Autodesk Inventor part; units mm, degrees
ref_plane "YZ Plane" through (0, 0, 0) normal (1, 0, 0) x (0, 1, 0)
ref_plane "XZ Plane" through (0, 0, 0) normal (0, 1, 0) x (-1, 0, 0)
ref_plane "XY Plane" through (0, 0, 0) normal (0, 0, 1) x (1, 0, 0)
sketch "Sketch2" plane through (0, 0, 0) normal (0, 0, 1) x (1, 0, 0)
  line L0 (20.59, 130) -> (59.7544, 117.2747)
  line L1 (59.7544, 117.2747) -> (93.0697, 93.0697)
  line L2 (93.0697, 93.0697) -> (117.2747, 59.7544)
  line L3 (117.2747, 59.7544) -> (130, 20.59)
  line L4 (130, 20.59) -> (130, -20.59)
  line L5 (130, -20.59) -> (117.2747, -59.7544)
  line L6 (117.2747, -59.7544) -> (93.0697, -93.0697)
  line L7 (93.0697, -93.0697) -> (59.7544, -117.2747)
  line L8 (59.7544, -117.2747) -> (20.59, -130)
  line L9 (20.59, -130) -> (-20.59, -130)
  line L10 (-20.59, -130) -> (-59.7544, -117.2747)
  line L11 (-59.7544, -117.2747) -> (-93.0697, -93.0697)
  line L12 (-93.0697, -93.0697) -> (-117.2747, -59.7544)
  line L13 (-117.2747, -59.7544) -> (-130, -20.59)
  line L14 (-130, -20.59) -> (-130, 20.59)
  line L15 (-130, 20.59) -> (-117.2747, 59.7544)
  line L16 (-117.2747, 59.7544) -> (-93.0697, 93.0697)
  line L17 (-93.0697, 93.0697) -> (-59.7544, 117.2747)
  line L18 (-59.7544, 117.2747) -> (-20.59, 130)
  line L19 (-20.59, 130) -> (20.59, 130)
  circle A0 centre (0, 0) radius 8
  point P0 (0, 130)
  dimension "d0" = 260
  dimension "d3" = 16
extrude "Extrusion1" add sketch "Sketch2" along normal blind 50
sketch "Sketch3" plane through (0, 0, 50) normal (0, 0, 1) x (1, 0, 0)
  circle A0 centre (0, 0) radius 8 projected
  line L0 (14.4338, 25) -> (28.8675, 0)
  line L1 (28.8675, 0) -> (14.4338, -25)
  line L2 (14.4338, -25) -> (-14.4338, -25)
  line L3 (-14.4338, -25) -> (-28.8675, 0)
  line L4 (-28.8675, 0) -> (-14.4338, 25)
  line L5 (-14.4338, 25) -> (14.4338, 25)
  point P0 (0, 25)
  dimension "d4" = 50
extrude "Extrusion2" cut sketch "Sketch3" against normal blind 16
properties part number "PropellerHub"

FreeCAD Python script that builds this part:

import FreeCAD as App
import Part
import Sketcher
from FreeCAD import Vector
Q = App.Units.Quantity


def add_polygon(sketch, points):
    """Adds a closed chain of lines whose ends are joined by coincident constraints."""
    first, n = sketch.GeometryCount, len(points)
    for a, b in zip(points, points[1:] + points[:1]):
        sketch.addGeometry(Part.LineSegment(App.Vector(*a, 0), App.Vector(*b, 0)), False)
    for i in range(n):
        sketch.addConstraint(Sketcher.Constraint("Coincident", first + i, 2, first + (i + 1) % n, 1))

doc = App.newDocument("Part")
body = doc.addObject("PartDesign::Body", "Body")

# Sketch on XY plane
sketch1 = body.newObject("Sketcher::SketchObject", "Sketch")
sketch1.AttachmentSupport = (doc.getObject("XY_Plane"), [""])
sketch1.MapMode = "FlatFace"
add_polygon(sketch1, [(60, 117), (21, 130), (-21, 130), (-60, 117), (-93, 93), (-117, 60), (-130, 21), (-130, -21), (-117, -60), (-93, -93), (-60, -117), (-21, -130), (21, -130), (60, -117), (93, -93), (117, -60), (130, -21), (130, 21), (117, 60), (93, 93)])  # lines 0-19
sketch1.addGeometry(Part.Circle(Vector(0, 0, 0), Vector(0, 0, 1), 8), False)  # 20
sketch1.addConstraint(Sketcher.Constraint("Horizontal", 1))
sketch1.addConstraint(Sketcher.Constraint("Vertical", 6))
sketch1.addConstraint(Sketcher.Constraint("Horizontal", 11))
sketch1.addConstraint(Sketcher.Constraint("Vertical", 16))
sketch1.addConstraint(Sketcher.Constraint("Coincident", 20, 3, -1, 1))
sketch1.addConstraint(Sketcher.Constraint("Symmetric", 0, 2, 10, 2, -1, 1))
sketch1.addConstraint(Sketcher.Constraint("Symmetric", 2, 2, 12, 2, -1, 1))
sketch1.addConstraint(Sketcher.Constraint("Symmetric", 3, 2, 13, 2, -1, 1))
sketch1.addConstraint(Sketcher.Constraint("Symmetric", 4, 2, 14, 2, -1, 1))
sketch1.addConstraint(Sketcher.Constraint("Symmetric", 5, 2, 15, 2, -1, 1))
sketch1.addConstraint(Sketcher.Constraint("Symmetric", 7, 2, 17, 2, -1, 1))
sketch1.addConstraint(Sketcher.Constraint("Symmetric", 8, 2, 18, 2, -1, 1))
sketch1.addConstraint(Sketcher.Constraint("Symmetric", 9, 2, 19, 2, -1, 1))
sketch1.addConstraint(Sketcher.Constraint("Symmetric", 9, 2, 12, 2, -2))
sketch1.addConstraint(Sketcher.Constraint("Symmetric", 8, 2, 13, 2, -2))
sketch1.addConstraint(Sketcher.Constraint("Symmetric", 7, 2, 14, 2, -2))
sketch1.addConstraint(Sketcher.Constraint("Perpendicular", 0, 5))
sketch1.addConstraint(Sketcher.Constraint("Perpendicular", 2, 7))
sketch1.addConstraint(Sketcher.Constraint("Perpendicular", 3, 8))
sketch1.addConstraint(Sketcher.Constraint("Perpendicular", 7, 12))
sketch1.addConstraint(Sketcher.Constraint("Perpendicular", 12, 17))
sketch1.addConstraint(Sketcher.Constraint("Horizontal", 6, 2, 15, 2))
sketch1.addConstraint(Sketcher.Constraint("Equal", 11, 6))
sketch1.addConstraint(Sketcher.Constraint("Equal", 2, 3))
sketch1.addConstraint(Sketcher.Constraint("Equal", 3, 4))
sketch1.addConstraint(Sketcher.Constraint("Equal", 4, 5))
sketch1.addConstraint(Sketcher.Constraint("Diameter", 20, Q("16 mm")))
sketch1.addConstraint(Sketcher.Constraint("Angle", 0, Q("162 deg")))
sketch1.addConstraint(Sketcher.Constraint("Angle", 3, Q("-144 deg")))
sketch1.addConstraint(Sketcher.Constraint("DistanceY", -1, 1, 0, 2, Q("130 mm")))
sketch1.addConstraint(Sketcher.Constraint("DistanceX", 1, 2, 1, 1, Q("41.18 mm")))
pad1 = body.newObject("PartDesign::Pad", "Pad")
pad1.Profile = sketch1
pad1.Length = 50

# Sketch on XY plane
sketch2 = body.newObject("Sketcher::SketchObject", "Sketch001")
sketch2.AttachmentSupport = (doc.getObject("XY_Plane"), [""])
sketch2.MapMode = "FlatFace"
sketch2.AttachmentOffset = App.Placement(Vector(0, 0, 50), App.Rotation())
add_polygon(sketch2, [(29, 0), (14, 25), (-14, 25), (-29, 0), (-14, -25), (14, -25)])  # lines 0-5
sketch2.addGeometry(Part.Circle(Vector(0, 0, 0), Vector(0, 0, 1), 8), False)  # 6
sketch2.addConstraint(Sketcher.Constraint("Horizontal", 1))
sketch2.addConstraint(Sketcher.Constraint("Horizontal", 4))
sketch2.addConstraint(Sketcher.Constraint("Coincident", 6, 3, -1, 1))
sketch2.addConstraint(Sketcher.Constraint("Symmetric", 0, 2, 3, 2, -1, 1))
sketch2.addConstraint(Sketcher.Constraint("Symmetric", 2, 2, 5, 2, -1, 1))
sketch2.addConstraint(Sketcher.Constraint("PointOnObject", 2, 2, -1))
sketch2.addConstraint(Sketcher.Constraint("Parallel", 2, 5))
sketch2.addConstraint(Sketcher.Constraint("Vertical", 1, 2, 3, 2))
sketch2.addConstraint(Sketcher.Constraint("Diameter", 6, Q("16 mm")))
sketch2.addConstraint(Sketcher.Constraint("DistanceY", 3, 2, 1, 2, Q("50 mm")))
sketch2.addConstraint(Sketcher.Constraint("Angle", 0, Q("120 deg")))
sketch2.addConstraint(Sketcher.Constraint("DistanceX", 1, 2, 1, 1, Q("28.8676 mm")))
pocket1 = body.newObject("PartDesign::Pocket", "Pocket")
pocket1.Profile = sketch2
pocket1.Length = 16

doc.recompute()
